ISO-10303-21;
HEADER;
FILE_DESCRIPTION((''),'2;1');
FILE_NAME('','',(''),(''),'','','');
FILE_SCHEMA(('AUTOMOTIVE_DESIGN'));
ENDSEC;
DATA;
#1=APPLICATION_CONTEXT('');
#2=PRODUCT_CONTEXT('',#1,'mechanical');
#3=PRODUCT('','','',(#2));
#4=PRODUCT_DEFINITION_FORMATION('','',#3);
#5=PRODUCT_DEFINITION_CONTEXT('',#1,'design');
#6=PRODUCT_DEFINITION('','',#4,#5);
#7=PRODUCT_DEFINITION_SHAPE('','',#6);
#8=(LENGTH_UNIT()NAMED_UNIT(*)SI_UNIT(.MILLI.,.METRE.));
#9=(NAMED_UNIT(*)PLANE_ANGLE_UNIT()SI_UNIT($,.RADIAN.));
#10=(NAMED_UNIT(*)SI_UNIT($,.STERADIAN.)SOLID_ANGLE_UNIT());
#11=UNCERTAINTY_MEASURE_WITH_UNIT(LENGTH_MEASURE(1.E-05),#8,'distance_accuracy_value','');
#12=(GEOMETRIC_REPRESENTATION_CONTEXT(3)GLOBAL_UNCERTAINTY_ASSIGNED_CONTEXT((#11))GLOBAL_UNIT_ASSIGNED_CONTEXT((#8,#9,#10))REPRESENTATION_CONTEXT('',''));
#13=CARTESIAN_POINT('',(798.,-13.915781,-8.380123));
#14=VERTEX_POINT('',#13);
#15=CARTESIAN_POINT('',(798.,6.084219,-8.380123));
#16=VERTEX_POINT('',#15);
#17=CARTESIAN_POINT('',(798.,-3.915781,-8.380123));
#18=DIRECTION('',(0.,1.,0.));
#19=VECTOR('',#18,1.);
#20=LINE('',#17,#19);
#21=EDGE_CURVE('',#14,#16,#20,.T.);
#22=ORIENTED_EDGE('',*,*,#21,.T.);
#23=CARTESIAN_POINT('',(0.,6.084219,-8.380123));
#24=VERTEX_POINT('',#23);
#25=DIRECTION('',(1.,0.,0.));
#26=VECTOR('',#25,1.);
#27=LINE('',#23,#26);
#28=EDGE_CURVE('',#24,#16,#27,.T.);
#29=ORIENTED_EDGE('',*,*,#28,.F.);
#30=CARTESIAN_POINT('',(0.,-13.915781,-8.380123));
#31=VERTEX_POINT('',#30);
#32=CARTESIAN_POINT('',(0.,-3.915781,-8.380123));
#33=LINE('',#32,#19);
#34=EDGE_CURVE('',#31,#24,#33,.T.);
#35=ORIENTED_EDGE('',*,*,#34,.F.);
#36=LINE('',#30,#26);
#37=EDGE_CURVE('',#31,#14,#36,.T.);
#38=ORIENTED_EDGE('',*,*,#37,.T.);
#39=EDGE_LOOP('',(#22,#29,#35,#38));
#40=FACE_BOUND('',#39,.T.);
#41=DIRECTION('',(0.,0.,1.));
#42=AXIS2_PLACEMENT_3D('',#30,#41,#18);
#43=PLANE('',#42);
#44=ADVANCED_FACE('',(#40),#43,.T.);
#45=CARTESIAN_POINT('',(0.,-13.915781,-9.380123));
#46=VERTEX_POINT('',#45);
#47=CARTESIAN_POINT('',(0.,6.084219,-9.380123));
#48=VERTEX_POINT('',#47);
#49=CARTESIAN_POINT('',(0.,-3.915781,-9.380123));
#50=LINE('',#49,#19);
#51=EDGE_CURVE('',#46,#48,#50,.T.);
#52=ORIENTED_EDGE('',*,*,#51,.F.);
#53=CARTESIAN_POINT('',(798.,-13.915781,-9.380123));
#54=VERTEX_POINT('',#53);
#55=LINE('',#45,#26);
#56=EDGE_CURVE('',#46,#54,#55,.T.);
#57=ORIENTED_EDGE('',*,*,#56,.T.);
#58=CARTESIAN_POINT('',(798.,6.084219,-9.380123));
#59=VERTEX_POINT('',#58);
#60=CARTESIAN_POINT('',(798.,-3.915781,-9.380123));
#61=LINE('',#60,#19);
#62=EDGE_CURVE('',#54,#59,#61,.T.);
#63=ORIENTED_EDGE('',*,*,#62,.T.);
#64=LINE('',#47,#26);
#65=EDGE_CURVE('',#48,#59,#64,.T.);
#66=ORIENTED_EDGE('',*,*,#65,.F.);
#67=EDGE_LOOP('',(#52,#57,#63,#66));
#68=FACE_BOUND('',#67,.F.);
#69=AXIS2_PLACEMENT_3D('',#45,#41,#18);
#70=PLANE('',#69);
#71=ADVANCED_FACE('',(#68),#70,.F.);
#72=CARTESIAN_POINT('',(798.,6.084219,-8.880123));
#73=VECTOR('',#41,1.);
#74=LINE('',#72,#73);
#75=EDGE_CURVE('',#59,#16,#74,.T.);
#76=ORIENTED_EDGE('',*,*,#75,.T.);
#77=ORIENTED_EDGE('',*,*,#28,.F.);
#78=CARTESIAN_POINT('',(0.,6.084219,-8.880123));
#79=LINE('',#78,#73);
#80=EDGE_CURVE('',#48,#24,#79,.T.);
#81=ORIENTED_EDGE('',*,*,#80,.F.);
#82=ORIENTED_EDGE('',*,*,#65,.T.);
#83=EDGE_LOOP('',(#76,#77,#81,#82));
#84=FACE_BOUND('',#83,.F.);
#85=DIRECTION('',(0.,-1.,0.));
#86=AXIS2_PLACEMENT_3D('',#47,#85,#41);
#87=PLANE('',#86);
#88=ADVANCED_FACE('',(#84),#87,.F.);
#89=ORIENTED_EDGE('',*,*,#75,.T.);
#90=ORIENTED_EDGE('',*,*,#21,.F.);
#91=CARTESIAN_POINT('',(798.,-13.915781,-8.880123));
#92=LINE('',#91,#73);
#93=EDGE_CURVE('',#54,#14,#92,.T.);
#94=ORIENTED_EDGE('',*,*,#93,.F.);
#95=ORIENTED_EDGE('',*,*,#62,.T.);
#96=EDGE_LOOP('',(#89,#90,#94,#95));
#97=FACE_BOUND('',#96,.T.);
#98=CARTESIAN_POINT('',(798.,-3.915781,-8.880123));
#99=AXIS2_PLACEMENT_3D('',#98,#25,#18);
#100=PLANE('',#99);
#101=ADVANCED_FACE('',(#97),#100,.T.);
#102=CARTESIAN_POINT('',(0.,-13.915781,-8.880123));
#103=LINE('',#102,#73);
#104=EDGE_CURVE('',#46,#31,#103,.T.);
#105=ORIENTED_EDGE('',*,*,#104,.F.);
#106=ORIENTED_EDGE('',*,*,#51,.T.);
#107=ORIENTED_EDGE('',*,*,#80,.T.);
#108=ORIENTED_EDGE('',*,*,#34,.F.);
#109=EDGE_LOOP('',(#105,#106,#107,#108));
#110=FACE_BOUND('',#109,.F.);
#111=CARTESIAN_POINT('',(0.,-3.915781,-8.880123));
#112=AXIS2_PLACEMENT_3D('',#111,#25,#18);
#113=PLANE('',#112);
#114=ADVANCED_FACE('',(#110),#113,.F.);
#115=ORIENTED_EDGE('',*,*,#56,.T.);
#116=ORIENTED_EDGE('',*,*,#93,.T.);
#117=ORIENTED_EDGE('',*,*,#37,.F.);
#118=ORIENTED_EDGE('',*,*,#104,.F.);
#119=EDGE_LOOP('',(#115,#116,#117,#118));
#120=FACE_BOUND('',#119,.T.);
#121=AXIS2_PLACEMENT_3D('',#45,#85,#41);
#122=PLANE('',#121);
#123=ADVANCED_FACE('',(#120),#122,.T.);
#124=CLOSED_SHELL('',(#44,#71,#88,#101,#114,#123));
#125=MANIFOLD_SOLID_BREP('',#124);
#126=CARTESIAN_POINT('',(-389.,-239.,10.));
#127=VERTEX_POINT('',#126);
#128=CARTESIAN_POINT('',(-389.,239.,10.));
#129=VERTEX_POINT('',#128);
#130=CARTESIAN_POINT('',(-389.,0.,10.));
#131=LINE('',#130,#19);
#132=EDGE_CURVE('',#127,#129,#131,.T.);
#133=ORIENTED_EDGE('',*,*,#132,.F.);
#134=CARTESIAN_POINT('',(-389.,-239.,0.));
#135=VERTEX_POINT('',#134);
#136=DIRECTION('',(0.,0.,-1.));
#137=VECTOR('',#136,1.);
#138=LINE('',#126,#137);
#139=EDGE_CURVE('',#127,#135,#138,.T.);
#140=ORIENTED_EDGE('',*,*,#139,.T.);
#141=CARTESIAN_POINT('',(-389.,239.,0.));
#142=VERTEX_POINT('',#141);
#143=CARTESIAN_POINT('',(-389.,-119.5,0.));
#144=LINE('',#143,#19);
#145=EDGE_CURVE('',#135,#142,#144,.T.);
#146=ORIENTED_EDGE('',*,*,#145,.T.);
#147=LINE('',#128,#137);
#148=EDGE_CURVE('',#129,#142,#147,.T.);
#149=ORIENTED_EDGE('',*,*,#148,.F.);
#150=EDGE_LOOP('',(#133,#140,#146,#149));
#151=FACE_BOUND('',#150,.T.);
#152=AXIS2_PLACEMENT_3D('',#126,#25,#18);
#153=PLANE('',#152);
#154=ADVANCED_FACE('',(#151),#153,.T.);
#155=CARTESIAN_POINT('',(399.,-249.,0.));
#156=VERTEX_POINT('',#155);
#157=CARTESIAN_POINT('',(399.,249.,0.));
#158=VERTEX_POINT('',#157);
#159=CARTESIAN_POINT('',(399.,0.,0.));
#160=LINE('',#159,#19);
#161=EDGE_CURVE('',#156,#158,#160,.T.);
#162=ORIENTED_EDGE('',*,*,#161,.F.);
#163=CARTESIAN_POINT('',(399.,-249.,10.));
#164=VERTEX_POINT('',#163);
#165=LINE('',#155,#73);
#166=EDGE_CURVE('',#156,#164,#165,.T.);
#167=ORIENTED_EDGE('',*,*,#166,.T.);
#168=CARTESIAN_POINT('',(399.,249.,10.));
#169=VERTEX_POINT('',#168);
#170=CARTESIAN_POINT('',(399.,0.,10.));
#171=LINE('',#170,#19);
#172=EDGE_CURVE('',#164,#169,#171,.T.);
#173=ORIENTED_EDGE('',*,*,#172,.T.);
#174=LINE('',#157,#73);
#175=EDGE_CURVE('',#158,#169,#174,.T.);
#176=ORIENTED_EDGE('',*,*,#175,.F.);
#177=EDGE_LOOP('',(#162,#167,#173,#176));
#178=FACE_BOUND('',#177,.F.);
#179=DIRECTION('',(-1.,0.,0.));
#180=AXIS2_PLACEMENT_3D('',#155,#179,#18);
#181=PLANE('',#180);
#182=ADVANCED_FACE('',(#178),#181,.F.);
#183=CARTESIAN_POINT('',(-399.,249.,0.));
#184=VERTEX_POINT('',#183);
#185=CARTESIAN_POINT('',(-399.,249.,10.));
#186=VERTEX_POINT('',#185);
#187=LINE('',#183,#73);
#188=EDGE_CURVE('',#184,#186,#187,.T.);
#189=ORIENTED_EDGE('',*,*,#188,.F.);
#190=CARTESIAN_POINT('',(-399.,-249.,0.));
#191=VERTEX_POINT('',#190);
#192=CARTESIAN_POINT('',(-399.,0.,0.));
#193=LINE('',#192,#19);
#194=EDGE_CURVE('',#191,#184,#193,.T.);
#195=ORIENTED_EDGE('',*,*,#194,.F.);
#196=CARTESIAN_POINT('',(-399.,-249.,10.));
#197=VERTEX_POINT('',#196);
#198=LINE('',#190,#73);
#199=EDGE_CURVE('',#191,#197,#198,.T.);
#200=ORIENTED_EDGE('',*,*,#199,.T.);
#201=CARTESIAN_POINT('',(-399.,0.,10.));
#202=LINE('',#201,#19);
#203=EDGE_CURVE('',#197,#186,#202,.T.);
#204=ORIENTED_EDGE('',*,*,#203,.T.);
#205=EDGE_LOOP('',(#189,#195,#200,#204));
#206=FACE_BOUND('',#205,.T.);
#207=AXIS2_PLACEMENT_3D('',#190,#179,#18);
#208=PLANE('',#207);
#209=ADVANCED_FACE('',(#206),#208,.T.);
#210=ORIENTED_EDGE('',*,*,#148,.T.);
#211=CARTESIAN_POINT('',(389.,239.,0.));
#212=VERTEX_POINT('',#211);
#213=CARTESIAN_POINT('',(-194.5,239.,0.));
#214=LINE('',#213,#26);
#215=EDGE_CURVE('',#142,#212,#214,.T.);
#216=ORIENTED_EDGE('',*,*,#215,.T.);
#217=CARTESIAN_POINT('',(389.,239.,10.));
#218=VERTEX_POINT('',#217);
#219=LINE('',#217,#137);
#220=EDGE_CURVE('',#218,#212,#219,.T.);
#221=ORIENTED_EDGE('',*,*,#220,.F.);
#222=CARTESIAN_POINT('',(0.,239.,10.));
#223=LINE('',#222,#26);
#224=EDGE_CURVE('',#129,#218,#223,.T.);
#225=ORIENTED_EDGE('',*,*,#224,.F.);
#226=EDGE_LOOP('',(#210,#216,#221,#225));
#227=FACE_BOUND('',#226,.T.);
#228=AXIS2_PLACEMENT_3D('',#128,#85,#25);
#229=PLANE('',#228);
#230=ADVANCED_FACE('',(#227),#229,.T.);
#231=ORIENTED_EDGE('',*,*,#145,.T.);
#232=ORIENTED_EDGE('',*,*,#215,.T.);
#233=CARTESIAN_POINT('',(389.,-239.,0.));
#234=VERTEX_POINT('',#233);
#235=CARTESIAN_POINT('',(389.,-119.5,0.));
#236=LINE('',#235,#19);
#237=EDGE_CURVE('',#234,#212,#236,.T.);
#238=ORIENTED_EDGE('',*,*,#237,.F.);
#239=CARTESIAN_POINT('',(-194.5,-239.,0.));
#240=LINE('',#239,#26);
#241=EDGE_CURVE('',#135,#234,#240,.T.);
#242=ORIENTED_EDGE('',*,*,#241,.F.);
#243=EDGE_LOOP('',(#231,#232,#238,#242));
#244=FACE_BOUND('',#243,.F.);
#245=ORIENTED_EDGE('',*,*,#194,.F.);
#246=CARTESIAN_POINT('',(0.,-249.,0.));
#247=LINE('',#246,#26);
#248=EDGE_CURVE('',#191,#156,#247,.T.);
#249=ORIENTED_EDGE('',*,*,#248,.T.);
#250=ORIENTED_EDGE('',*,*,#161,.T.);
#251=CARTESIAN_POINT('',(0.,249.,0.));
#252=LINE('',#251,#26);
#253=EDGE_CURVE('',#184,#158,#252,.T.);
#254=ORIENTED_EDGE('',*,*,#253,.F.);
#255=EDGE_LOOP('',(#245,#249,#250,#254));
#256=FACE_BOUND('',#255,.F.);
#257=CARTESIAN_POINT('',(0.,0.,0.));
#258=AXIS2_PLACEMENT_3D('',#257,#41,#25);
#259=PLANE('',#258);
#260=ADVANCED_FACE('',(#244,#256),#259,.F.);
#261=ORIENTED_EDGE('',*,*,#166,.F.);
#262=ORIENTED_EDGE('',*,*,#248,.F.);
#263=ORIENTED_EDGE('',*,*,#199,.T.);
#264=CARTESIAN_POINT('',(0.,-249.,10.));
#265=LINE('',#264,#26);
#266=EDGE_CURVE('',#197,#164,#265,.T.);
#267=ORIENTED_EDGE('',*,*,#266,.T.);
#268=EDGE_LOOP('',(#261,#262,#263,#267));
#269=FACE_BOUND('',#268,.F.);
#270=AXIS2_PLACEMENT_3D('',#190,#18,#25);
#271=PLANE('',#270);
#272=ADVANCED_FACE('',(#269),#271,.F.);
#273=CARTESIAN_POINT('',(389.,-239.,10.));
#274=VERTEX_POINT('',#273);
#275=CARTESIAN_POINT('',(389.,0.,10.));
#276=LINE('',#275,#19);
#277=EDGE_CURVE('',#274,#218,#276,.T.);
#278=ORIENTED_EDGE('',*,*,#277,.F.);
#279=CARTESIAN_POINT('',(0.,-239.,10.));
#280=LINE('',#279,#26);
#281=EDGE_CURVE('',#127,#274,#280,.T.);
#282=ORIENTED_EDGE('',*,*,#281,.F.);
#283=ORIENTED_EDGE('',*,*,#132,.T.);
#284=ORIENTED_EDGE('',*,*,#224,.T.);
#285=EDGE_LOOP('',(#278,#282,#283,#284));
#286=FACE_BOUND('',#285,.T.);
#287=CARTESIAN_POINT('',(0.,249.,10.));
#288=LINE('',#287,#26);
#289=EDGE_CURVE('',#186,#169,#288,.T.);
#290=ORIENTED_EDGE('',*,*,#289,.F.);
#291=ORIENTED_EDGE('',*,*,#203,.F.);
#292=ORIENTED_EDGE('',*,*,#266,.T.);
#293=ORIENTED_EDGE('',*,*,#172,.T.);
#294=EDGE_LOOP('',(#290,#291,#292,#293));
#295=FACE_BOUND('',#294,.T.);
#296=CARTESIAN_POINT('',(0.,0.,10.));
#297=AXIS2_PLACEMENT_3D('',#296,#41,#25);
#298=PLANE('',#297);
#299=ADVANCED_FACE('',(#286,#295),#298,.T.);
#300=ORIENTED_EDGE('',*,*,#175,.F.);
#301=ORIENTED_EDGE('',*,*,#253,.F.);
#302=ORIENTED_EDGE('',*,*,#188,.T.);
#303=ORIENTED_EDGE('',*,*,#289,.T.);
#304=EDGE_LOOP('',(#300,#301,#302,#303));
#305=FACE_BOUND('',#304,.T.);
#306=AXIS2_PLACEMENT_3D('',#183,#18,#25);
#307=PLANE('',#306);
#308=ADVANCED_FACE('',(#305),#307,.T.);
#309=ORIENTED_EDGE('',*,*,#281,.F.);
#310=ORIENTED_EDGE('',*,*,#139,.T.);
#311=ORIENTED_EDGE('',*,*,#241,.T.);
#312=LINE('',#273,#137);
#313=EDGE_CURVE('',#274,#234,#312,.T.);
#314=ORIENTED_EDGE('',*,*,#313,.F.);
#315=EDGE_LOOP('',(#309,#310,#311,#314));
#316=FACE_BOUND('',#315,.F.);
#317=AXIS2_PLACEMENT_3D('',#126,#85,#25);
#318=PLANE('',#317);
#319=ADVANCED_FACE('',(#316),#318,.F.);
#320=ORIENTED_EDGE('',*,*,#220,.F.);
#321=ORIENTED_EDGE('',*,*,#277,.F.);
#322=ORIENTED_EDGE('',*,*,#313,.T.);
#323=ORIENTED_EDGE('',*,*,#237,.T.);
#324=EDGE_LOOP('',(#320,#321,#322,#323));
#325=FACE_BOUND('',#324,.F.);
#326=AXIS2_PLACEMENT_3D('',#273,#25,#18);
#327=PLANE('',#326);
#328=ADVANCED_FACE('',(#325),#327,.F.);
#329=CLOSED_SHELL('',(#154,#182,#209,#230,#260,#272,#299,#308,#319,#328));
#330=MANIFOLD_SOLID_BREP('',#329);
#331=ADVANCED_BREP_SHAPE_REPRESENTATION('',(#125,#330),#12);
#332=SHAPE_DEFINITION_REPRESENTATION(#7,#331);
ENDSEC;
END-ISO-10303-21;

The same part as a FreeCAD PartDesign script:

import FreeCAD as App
import Part
import Sketcher

doc = App.newDocument("Part")
body = doc.addObject("PartDesign::Body", "Body")

sketch1 = body.newObject("Sketcher::SketchObject", "Sketch")
sketch1.AttachmentSupport = (doc.getObject("XY_Plane"), [""])
sketch1.MapMode = "FlatFace"
sketch1.addGeometry(Part.LineSegment(App.Vector(-399, 249, 0), App.Vector(-399, -249, 0)), False)
sketch1.addGeometry(Part.LineSegment(App.Vector(-399, -249, 0), App.Vector(399, -249, 0)), False)
sketch1.addGeometry(Part.LineSegment(App.Vector(399, -249, 0), App.Vector(399, 249, 0)), False)
sketch1.addGeometry(Part.LineSegment(App.Vector(399, 249, 0), App.Vector(-399, 249, 0)), False)
sketch1.addConstraint(Sketcher.Constraint("Coincident", 0, 2, 1, 1))
sketch1.addConstraint(Sketcher.Constraint("Coincident", 1, 2, 2, 1))
sketch1.addConstraint(Sketcher.Constraint("Coincident", 2, 2, 3, 1))
sketch1.addConstraint(Sketcher.Constraint("Coincident", 3, 2, 0, 1))
sketch1.addConstraint(Sketcher.Constraint("Vertical", 0))
sketch1.addConstraint(Sketcher.Constraint("Horizontal", 1))
sketch1.addConstraint(Sketcher.Constraint("Vertical", 2))
sketch1.addConstraint(Sketcher.Constraint("Horizontal", 3))
sketch1.addConstraint(Sketcher.Constraint("Symmetric", 0, 2, 2, 2, -1, 1))
sketch1.addConstraint(Sketcher.Constraint("DistanceX", 1, 1, 1, 2, 798.0))
sketch1.addConstraint(Sketcher.Constraint("DistanceY", 0, 2, 0, 1, 498.0))
pad1 = body.newObject("PartDesign::Pad", "Pad")
pad1.Profile = sketch1
pad1.Length = 10

sketch2 = body.newObject("Sketcher::SketchObject", "Sketch001")
sketch2.AttachmentSupport = (doc.getObject("XY_Plane"), [""])
sketch2.MapMode = "FlatFace"
sketch2.AttachmentOffset = App.Placement(App.Vector(0, 0, 10), App.Rotation())
sketch2.addGeometry(Part.LineSegment(App.Vector(-389, 239, 0), App.Vector(-389, -239, 0)), False)
sketch2.addGeometry(Part.LineSegment(App.Vector(-389, -239, 0), App.Vector(389, -239, 0)), False)
sketch2.addGeometry(Part.LineSegment(App.Vector(389, -239, 0), App.Vector(389, 239, 0)), False)
sketch2.addGeometry(Part.LineSegment(App.Vector(389, 239, 0), App.Vector(-389, 239, 0)), False)
sketch2.addConstraint(Sketcher.Constraint("Coincident", 0, 2, 1, 1))
sketch2.addConstraint(Sketcher.Constraint("Coincident", 1, 2, 2, 1))
sketch2.addConstraint(Sketcher.Constraint("Coincident", 2, 2, 3, 1))
sketch2.addConstraint(Sketcher.Constraint("Coincident", 3, 2, 0, 1))
sketch2.addConstraint(Sketcher.Constraint("Vertical", 0))
sketch2.addConstraint(Sketcher.Constraint("Horizontal", 1))
sketch2.addConstraint(Sketcher.Constraint("Vertical", 2))
sketch2.addConstraint(Sketcher.Constraint("Horizontal", 3))
sketch2.addConstraint(Sketcher.Constraint("Symmetric", 0, 2, 2, 2, -1, 1))
sketch2.addConstraint(Sketcher.Constraint("DistanceX", 1, 1, 1, 2, 778.0))
sketch2.addConstraint(Sketcher.Constraint("DistanceY", 0, 2, 0, 1, 478.0))
pocket1 = body.newObject("PartDesign::Pocket", "Pocket")
pocket1.Profile = sketch2
pocket1.Type = "ThroughAll"
body2 = doc.addObject("PartDesign::Body", "Body001")

sketch3 = body2.newObject("Sketcher::SketchObject", "Sketch002")
sketch3.AttachmentSupport = (doc.getObject("YZ_Plane001"), [""])
sketch3.MapMode = "FlatFace"
sketch3.addGeometry(Part.LineSegment(App.Vector(-13.9, -8.4, 0), App.Vector(-13.9, -9.4, 0)), False)
sketch3.addGeometry(Part.LineSegment(App.Vector(-13.9, -9.4, 0), App.Vector(6.1, -9.4, 0)), False)
sketch3.addGeometry(Part.LineSegment(App.Vector(6.1, -9.4, 0), App.Vector(6.1, -8.4, 0)), False)
sketch3.addGeometry(Part.LineSegment(App.Vector(6.1, -8.4, 0), App.Vector(-13.9, -8.4, 0)), False)
sketch3.addConstraint(Sketcher.Constraint("Coincident", 0, 2, 1, 1))
sketch3.addConstraint(Sketcher.Constraint("Coincident", 1, 2, 2, 1))
sketch3.addConstraint(Sketcher.Constraint("Coincident", 2, 2, 3, 1))
sketch3.addConstraint(Sketcher.Constraint("Coincident", 3, 2, 0, 1))
sketch3.addConstraint(Sketcher.Constraint("Vertical", 0))
sketch3.addConstraint(Sketcher.Constraint("Horizontal", 1))
sketch3.addConstraint(Sketcher.Constraint("Vertical", 2))
sketch3.addConstraint(Sketcher.Constraint("Horizontal", 3))
sketch3.addConstraint(Sketcher.Constraint("DistanceX", 1, 1, 1, 2, 20.0))
sketch3.addConstraint(Sketcher.Constraint("DistanceY", 0, 2, 0, 1, 1.0))
sketch3.addConstraint(Sketcher.Constraint("DistanceX", 0, 2, -1, 1, 13.915781))
sketch3.addConstraint(Sketcher.Constraint("DistanceY", 0, 2, -1, 1, 9.380123))
pad2 = body2.newObject("PartDesign::Pad", "Pad001")
pad2.Profile = sketch3
pad2.Length = 798

doc.recompute()
